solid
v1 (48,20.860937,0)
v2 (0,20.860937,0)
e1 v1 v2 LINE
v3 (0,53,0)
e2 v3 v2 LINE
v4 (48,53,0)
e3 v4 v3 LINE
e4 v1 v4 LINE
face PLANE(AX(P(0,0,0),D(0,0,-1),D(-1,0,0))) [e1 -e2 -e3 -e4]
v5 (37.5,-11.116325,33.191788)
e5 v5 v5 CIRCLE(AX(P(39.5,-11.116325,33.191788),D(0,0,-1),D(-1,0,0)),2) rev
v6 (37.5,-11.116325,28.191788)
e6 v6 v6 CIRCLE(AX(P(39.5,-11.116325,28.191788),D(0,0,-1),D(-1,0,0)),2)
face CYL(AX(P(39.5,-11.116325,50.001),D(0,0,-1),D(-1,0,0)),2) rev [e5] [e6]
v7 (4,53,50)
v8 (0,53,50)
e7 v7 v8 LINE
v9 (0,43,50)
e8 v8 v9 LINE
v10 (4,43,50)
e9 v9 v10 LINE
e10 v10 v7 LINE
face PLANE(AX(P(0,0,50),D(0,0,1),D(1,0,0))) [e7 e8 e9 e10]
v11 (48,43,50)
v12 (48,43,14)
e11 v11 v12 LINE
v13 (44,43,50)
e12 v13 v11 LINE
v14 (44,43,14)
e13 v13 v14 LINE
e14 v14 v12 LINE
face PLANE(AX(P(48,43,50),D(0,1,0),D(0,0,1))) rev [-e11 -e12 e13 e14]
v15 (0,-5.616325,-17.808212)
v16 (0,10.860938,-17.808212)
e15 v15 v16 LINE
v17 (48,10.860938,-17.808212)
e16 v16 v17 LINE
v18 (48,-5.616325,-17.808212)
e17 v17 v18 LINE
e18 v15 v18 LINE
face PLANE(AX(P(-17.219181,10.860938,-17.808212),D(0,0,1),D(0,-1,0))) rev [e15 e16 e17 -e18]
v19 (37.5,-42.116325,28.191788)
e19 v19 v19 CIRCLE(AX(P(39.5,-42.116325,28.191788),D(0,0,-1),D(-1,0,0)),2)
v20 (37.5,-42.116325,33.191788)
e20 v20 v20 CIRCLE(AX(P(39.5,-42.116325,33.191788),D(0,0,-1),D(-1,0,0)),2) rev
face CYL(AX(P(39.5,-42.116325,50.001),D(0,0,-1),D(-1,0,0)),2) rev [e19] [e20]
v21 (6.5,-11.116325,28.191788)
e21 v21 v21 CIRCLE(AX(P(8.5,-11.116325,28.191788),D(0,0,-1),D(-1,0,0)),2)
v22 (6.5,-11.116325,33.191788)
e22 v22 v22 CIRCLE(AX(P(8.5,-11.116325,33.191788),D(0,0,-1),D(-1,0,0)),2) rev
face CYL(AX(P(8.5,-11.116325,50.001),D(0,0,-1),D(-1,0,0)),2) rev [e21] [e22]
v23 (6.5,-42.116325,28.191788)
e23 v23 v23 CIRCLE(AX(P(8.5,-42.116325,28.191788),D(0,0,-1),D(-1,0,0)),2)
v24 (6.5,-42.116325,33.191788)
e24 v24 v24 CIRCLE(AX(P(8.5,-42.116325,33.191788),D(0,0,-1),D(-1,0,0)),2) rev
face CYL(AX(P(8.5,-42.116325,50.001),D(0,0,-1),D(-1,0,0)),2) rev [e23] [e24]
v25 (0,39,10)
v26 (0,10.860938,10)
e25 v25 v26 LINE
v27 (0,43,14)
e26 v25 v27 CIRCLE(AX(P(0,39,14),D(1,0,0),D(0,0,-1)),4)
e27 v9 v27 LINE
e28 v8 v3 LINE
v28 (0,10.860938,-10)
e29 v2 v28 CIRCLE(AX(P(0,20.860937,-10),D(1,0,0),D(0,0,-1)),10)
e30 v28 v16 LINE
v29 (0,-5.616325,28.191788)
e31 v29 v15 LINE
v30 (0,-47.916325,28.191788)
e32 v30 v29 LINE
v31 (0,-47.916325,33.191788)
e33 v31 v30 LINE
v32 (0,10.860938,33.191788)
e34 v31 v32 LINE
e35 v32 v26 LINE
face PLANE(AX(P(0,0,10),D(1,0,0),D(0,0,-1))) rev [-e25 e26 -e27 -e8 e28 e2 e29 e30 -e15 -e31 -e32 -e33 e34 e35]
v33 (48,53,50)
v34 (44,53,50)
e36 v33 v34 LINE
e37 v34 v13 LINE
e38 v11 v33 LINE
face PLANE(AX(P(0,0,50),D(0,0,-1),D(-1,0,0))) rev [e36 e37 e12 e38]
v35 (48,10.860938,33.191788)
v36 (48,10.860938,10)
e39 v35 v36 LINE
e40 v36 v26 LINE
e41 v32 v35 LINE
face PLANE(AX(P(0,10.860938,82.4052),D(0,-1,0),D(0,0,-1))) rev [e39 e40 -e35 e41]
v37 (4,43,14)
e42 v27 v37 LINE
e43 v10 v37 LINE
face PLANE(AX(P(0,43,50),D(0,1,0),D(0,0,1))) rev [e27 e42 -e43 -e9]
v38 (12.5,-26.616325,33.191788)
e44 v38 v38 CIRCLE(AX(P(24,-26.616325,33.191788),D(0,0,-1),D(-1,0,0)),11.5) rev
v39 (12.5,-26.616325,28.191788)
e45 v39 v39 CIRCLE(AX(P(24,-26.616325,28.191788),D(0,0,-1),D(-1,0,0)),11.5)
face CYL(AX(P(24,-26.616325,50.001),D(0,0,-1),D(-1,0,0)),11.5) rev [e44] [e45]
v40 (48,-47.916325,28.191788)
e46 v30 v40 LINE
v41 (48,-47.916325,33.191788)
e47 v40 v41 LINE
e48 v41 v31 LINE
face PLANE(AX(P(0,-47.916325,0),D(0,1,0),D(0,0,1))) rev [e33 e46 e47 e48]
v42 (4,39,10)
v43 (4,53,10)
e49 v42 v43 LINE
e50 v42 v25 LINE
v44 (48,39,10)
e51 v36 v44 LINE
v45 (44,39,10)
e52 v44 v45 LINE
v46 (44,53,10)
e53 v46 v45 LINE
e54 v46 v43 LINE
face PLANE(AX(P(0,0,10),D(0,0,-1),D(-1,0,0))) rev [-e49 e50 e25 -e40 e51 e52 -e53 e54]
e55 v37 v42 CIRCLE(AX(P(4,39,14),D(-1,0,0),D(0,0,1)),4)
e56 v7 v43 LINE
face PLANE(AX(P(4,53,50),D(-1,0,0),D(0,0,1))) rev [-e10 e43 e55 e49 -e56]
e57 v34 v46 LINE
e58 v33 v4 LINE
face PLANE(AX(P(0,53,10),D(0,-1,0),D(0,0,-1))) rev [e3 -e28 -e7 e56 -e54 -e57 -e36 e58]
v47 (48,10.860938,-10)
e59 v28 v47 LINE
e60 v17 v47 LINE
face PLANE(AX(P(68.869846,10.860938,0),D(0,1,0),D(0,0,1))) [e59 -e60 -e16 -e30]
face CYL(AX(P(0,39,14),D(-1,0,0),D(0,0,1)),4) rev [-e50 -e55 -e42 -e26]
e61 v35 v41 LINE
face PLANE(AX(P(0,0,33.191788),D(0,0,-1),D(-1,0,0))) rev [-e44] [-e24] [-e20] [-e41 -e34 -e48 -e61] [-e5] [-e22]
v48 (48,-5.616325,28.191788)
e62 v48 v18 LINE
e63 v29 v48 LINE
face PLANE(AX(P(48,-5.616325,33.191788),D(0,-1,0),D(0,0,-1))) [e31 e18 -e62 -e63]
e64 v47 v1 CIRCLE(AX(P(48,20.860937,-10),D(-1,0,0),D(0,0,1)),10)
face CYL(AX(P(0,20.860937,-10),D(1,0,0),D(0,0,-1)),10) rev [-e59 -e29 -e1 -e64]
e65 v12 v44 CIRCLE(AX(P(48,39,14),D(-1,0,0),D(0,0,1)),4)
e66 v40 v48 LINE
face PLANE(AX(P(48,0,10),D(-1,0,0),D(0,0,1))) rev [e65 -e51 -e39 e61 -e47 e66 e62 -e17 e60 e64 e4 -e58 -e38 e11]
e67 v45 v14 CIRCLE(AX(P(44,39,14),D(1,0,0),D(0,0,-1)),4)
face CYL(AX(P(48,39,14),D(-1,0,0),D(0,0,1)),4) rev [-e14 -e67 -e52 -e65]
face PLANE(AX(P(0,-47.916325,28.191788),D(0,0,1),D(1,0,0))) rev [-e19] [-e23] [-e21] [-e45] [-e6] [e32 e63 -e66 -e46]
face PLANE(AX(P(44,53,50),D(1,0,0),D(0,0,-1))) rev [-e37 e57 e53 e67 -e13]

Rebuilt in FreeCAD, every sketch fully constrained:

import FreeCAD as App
import Part
import Sketcher
Q = App.Units.Quantity


def edges_at(feature, points):
    """Names of the edges that pass closest to the given points."""
    edges = feature.Shape.Edges
    near = lambda p: min(range(len(edges)), key=lambda i: edges[i].distToShape(Part.Vertex(*p))[0])
    return sorted({f"Edge{near(p) + 1}" for p in points})

doc = App.newDocument("Part")
body = doc.addObject("PartDesign::Body", "Body")

# Sketch on XY plane
sketch1 = body.newObject("Sketcher::SketchObject", "Sketch")
sketch1.AttachmentSupport = (doc.getObject("XY_Plane"), [""])
sketch1.MapMode = "FlatFace"
sketch1.addGeometry(Part.LineSegment(App.Vector(0, 53, 0), App.Vector(0, 0, 0)), False)
sketch1.addGeometry(Part.LineSegment(App.Vector(0, 0, 0), App.Vector(48, 0, 0)), False)
sketch1.addGeometry(Part.LineSegment(App.Vector(48, 0, 0), App.Vector(48, 53, 0)), False)
sketch1.addGeometry(Part.LineSegment(App.Vector(48, 53, 0), App.Vector(0, 53, 0)), False)
sketch1.addConstraint(Sketcher.Constraint("Coincident", 0, 2, 1, 1))
sketch1.addConstraint(Sketcher.Constraint("Coincident", 1, 2, 2, 1))
sketch1.addConstraint(Sketcher.Constraint("Coincident", 2, 2, 3, 1))
sketch1.addConstraint(Sketcher.Constraint("Coincident", 3, 2, 0, 1))
sketch1.addConstraint(Sketcher.Constraint("Vertical", 0))
sketch1.addConstraint(Sketcher.Constraint("Horizontal", 1))
sketch1.addConstraint(Sketcher.Constraint("Vertical", 2))
sketch1.addConstraint(Sketcher.Constraint("Horizontal", 3))
sketch1.addConstraint(Sketcher.Constraint("Coincident", 0, 2, -1, 1))
sketch1.addConstraint(Sketcher.Constraint("DistanceX", 1, 1, 1, 2, Q("48 mm")))
sketch1.addConstraint(Sketcher.Constraint("DistanceY", 0, 2, 0, 1, Q("53 mm")))
pad1 = body.newObject("PartDesign::Pad", "Pad")
pad1.Profile = sketch1
pad1.Length = 10

# Sketch on XY plane
sketch2 = body.newObject("Sketcher::SketchObject", "Sketch001")
sketch2.AttachmentSupport = (doc.getObject("XY_Plane"), [""])
sketch2.MapMode = "FlatFace"
sketch2.addGeometry(Part.LineSegment(App.Vector(48, 0, 0), App.Vector(48, -6, 0)), False)
sketch2.addGeometry(Part.LineSegment(App.Vector(48, -6, 0), App.Vector(0, -6, 0)), False)
sketch2.addGeometry(Part.LineSegment(App.Vector(0, -6, 0), App.Vector(0, 0, 0)), False)
sketch2.addGeometry(Part.LineSegment(App.Vector(0, 0, 0), App.Vector(48, 0, 0)), False)
sketch2.addConstraint(Sketcher.Constraint("Coincident", 0, 2, 1, 1))
sketch2.addConstraint(Sketcher.Constraint("Coincident", 1, 2, 2, 1))
sketch2.addConstraint(Sketcher.Constraint("Coincident", 2, 2, 3, 1))
sketch2.addConstraint(Sketcher.Constraint("Coincident", 3, 2, 0, 1))
sketch2.addConstraint(Sketcher.Constraint("Vertical", 0))
sketch2.addConstraint(Sketcher.Constraint("Horizontal", 1))
sketch2.addConstraint(Sketcher.Constraint("Vertical", 2))
sketch2.addConstraint(Sketcher.Constraint("Horizontal", 3))
sketch2.addConstraint(Sketcher.Constraint("Coincident", 2, 2, -1, 1))
sketch2.addConstraint(Sketcher.Constraint("DistanceX", 1, 2, 1, 1, Q("48 mm")))
sketch2.addConstraint(Sketcher.Constraint("DistanceY", 0, 2, 0, 1, Q("5.616325 mm")))
pad2 = body.newObject("PartDesign::Pad", "Pad001")
pad2.Profile = sketch2
pad2.Length = 33.191788

# Sketch on XY plane
sketch3 = body.newObject("Sketcher::SketchObject", "Sketch002")
sketch3.AttachmentSupport = (doc.getObject("XY_Plane"), [""])
sketch3.MapMode = "FlatFace"
sketch3.AttachmentOffset = App.Placement(App.Vector(0, 0, 10), App.Rotation())
sketch3.addGeometry(Part.LineSegment(App.Vector(0, 53, 0), App.Vector(0, 43, 0)), False)
sketch3.addGeometry(Part.LineSegment(App.Vector(0, 43, 0), App.Vector(4, 43, 0)), False)
sketch3.addGeometry(Part.LineSegment(App.Vector(4, 43, 0), App.Vector(4, 53, 0)), False)
sketch3.addGeometry(Part.LineSegment(App.Vector(4, 53, 0), App.Vector(0, 53, 0)), False)
sketch3.addGeometry(Part.LineSegment(App.Vector(44, 53, 0), App.Vector(44, 43, 0)), False)
sketch3.addGeometry(Part.LineSegment(App.Vector(44, 43, 0), App.Vector(48, 43, 0)), False)
sketch3.addGeometry(Part.LineSegment(App.Vector(48, 43, 0), App.Vector(48, 53, 0)), False)
sketch3.addGeometry(Part.LineSegment(App.Vector(48, 53, 0), App.Vector(44, 53, 0)), False)
sketch3.addConstraint(Sketcher.Constraint("Coincident", 0, 2, 1, 1))
sketch3.addConstraint(Sketcher.Constraint("Coincident", 1, 2, 2, 1))
sketch3.addConstraint(Sketcher.Constraint("Coincident", 2, 2, 3, 1))
sketch3.addConstraint(Sketcher.Constraint("Coincident", 3, 2, 0, 1))
sketch3.addConstraint(Sketcher.Constraint("Coincident", 4, 2, 5, 1))
sketch3.addConstraint(Sketcher.Constraint("Coincident", 5, 2, 6, 1))
sketch3.addConstraint(Sketcher.Constraint("Coincident", 6, 2, 7, 1))
sketch3.addConstraint(Sketcher.Constraint("Coincident", 7, 2, 4, 1))
sketch3.addConstraint(Sketcher.Constraint("Vertical", 0))
sketch3.addConstraint(Sketcher.Constraint("Horizontal", 1))
sketch3.addConstraint(Sketcher.Constraint("Vertical", 2))
sketch3.addConstraint(Sketcher.Constraint("Horizontal", 3))
sketch3.addConstraint(Sketcher.Constraint("Vertical", 4))
sketch3.addConstraint(Sketcher.Constraint("Horizontal", 5))
sketch3.addConstraint(Sketcher.Constraint("Vertical", 6))
sketch3.addConstraint(Sketcher.Constraint("Horizontal", 7))
sketch3.addConstraint(Sketcher.Constraint("PointOnObject", 0, 2, -2))
sketch3.addConstraint(Sketcher.Constraint("Horizontal", 1, 2, 4, 2))
sketch3.addConstraint(Sketcher.Constraint("Horizontal", 3, 2, 6, 2))
sketch3.addConstraint(Sketcher.Constraint("Equal", 3, 5))
sketch3.addConstraint(Sketcher.Constraint("DistanceX", 1, 1, 1, 2, Q("4 mm")))
sketch3.addConstraint(Sketcher.Constraint("DistanceY", 0, 2, 0, 1, Q("10 mm")))
sketch3.addConstraint(Sketcher.Constraint("DistanceY", -1, 1, 0, 2, Q("43 mm")))
sketch3.addConstraint(Sketcher.Constraint("DistanceX", -1, 1, 4, 2, Q("44 mm")))
pad3 = body.newObject("PartDesign::Pad", "Pad002")
pad3.Profile = sketch3
pad3.Length = 40

# Sketch on XY plane
sketch4 = body.newObject("Sketcher::SketchObject", "Sketch003")
sketch4.AttachmentSupport = (doc.getObject("XY_Plane"), [""])
sketch4.MapMode = "FlatFace"
sketch4.AttachmentOffset = App.Placement(App.Vector(0, 0, 10), App.Rotation())
sketch4.addGeometry(Part.LineSegment(App.Vector(0, 11, 0), App.Vector(0, 0, 0)), False)
sketch4.addGeometry(Part.LineSegment(App.Vector(0, 0, 0), App.Vector(48, 0, 0)), False)
sketch4.addGeometry(Part.LineSegment(App.Vector(48, 0, 0), App.Vector(48, 11, 0)), False)
sketch4.addGeometry(Part.LineSegment(App.Vector(48, 11, 0), App.Vector(0, 11, 0)), False)
sketch4.addConstraint(Sketcher.Constraint("Coincident", 0, 2, 1, 1))
sketch4.addConstraint(Sketcher.Constraint("Coincident", 1, 2, 2, 1))
sketch4.addConstraint(Sketcher.Constraint("Coincident", 2, 2, 3, 1))
sketch4.addConstraint(Sketcher.Constraint("Coincident", 3, 2, 0, 1))
sketch4.addConstraint(Sketcher.Constraint("Vertical", 0))
sketch4.addConstraint(Sketcher.Constraint("Horizontal", 1))
sketch4.addConstraint(Sketcher.Constraint("Vertical", 2))
sketch4.addConstraint(Sketcher.Constraint("Horizontal", 3))
sketch4.addConstraint(Sketcher.Constraint("Coincident", 0, 2, -1, 1))
sketch4.addConstraint(Sketcher.Constraint("DistanceX", 1, 1, 1, 2, Q("48 mm")))
sketch4.addConstraint(Sketcher.Constraint("DistanceY", 0, 2, 0, 1, Q("10.860938 mm")))
pad4 = body.newObject("PartDesign::Pad", "Pad003")
pad4.Profile = sketch4
pad4.Length = 23.191788

# Sketch on XZ plane
sketch5 = body.newObject("Sketcher::SketchObject", "Sketch004")
sketch5.AttachmentSupport = (doc.getObject("XZ_Plane"), [""])
sketch5.MapMode = "FlatFace"
sketch5.AttachmentOffset = App.Placement(App.Vector(0, 0, 5.616325), App.Rotation())
sketch5.addGeometry(Part.LineSegment(App.Vector(0, 33, 0), App.Vector(0, 28, 0)), False)
sketch5.addGeometry(Part.LineSegment(App.Vector(0, 28, 0), App.Vector(48, 28, 0)), False)
sketch5.addGeometry(Part.LineSegment(App.Vector(48, 28, 0), App.Vector(48, 33, 0)), False)
sketch5.addGeometry(Part.LineSegment(App.Vector(48, 33, 0), App.Vector(0, 33, 0)), False)
sketch5.addConstraint(Sketcher.Constraint("Coincident", 0, 2, 1, 1))
sketch5.addConstraint(Sketcher.Constraint("Coincident", 1, 2, 2, 1))
sketch5.addConstraint(Sketcher.Constraint("Coincident", 2, 2, 3, 1))
sketch5.addConstraint(Sketcher.Constraint("Coincident", 3, 2, 0, 1))
sketch5.addConstraint(Sketcher.Constraint("Vertical", 0))
sketch5.addConstraint(Sketcher.Constraint("Horizontal", 1))
sketch5.addConstraint(Sketcher.Constraint("Vertical", 2))
sketch5.addConstraint(Sketcher.Constraint("Horizontal", 3))
sketch5.addConstraint(Sketcher.Constraint("PointOnObject", 0, 2, -2))
sketch5.addConstraint(Sketcher.Constraint("DistanceX", 1, 1, 1, 2, Q("48 mm")))
sketch5.addConstraint(Sketcher.Constraint("DistanceY", 0, 2, 0, 1, Q("5 mm")))
sketch5.addConstraint(Sketcher.Constraint("DistanceY", -1, 1, 0, 2, Q("28.191788 mm")))
pad5 = body.newObject("PartDesign::Pad", "Pad004")
pad5.Profile = sketch5
pad5.Length = 42.3

# Sketch on YZ plane
sketch6 = body.newObject("Sketcher::SketchObject", "Sketch005")
sketch6.AttachmentSupport = (doc.getObject("YZ_Plane"), [""])
sketch6.MapMode = "FlatFace"
sketch6.addGeometry(Part.LineSegment(App.Vector(11, -13, 0), App.Vector(-6, -13, 0)), False)
sketch6.addGeometry(Part.LineSegment(App.Vector(-6, -13, 0), App.Vector(-6, 0, 0)), False)
sketch6.addGeometry(Part.LineSegment(App.Vector(-6, 0, 0), App.Vector(11, 0, 0)), False)
sketch6.addGeometry(Part.LineSegment(App.Vector(11, 0, 0), App.Vector(11, -13, 0)), False)
sketch6.addConstraint(Sketcher.Constraint("Coincident", 0, 2, 1, 1))
sketch6.addConstraint(Sketcher.Constraint("Coincident", 1, 2, 2, 1))
sketch6.addConstraint(Sketcher.Constraint("Coincident", 2, 2, 3, 1))
sketch6.addConstraint(Sketcher.Constraint("Coincident", 3, 2, 0, 1))
sketch6.addConstraint(Sketcher.Constraint("Horizontal", 0))
sketch6.addConstraint(Sketcher.Constraint("Vertical", 1))
sketch6.addConstraint(Sketcher.Constraint("Horizontal", 2))
sketch6.addConstraint(Sketcher.Constraint("Vertical", 3))
sketch6.addConstraint(Sketcher.Constraint("PointOnObject", 1, 2, -1))
sketch6.addConstraint(Sketcher.Constraint("DistanceX", 0, 2, 0, 1, Q("16.477263 mm")))
sketch6.addConstraint(Sketcher.Constraint("DistanceY", 1, 1, 1, 2, Q("12.808212 mm")))
sketch6.addConstraint(Sketcher.Constraint("DistanceX", 0, 2, -1, 1, Q("5.616325 mm")))
pad6 = body.newObject("PartDesign::Pad", "Pad005")
pad6.Profile = sketch6
pad6.Length = 48

# Sketch on XY plane
sketch7 = body.newObject("Sketcher::SketchObject", "Sketch006")
sketch7.AttachmentSupport = (doc.getObject("XY_Plane"), [""])
sketch7.MapMode = "FlatFace"
sketch7.AttachmentOffset = App.Placement(App.Vector(0, 0, 28.191788), App.Rotation())
sketch7.addGeometry(Part.Circle(App.Vector(24, -27, 0), App.Vector(0, 0, 1), 12), False)
sketch7.addConstraint(Sketcher.Constraint("Diameter", 0, Q("23 mm")))
sketch7.addConstraint(Sketcher.Constraint("DistanceX", -1, 1, 0, 3, Q("24 mm")))
sketch7.addConstraint(Sketcher.Constraint("DistanceY", 0, 3, -1, 1, Q("26.616325 mm")))
pocket1 = body.newObject("PartDesign::Pocket", "Pocket")
pocket1.Profile = sketch7
pocket1.Type = "UpToFirst"
pocket1.Reversed = True

# Sketch on XY plane
sketch8 = body.newObject("Sketcher::SketchObject", "Sketch007")
sketch8.AttachmentSupport = (doc.getObject("XY_Plane"), [""])
sketch8.MapMode = "FlatFace"
sketch8.AttachmentOffset = App.Placement(App.Vector(0, 0, 28.191788), App.Rotation())
sketch8.addGeometry(Part.Circle(App.Vector(39.5, -11.1, 0), App.Vector(0, 0, 1), 2), False)
sketch8.addConstraint(Sketcher.Constraint("Diameter", 0, Q("4 mm")))
sketch8.addConstraint(Sketcher.Constraint("DistanceX", -1, 1, 0, 3, Q("39.5 mm")))
sketch8.addConstraint(Sketcher.Constraint("DistanceY", 0, 3, -1, 1, Q("11.116325 mm")))
pocket2 = body.newObject("PartDesign::Pocket", "Pocket001")
pocket2.Profile = sketch8
pocket2.Type = "UpToFirst"
pocket2.Reversed = True

# Sketch on XY plane
sketch9 = body.newObject("Sketcher::SketchObject", "Sketch008")
sketch9.AttachmentSupport = (doc.getObject("XY_Plane"), [""])
sketch9.MapMode = "FlatFace"
sketch9.AttachmentOffset = App.Placement(App.Vector(0, 0, 28.191788), App.Rotation())
sketch9.addGeometry(Part.Circle(App.Vector(39.5, -42.1, 0), App.Vector(0, 0, 1), 2), False)
sketch9.addConstraint(Sketcher.Constraint("Diameter", 0, Q("4 mm")))
sketch9.addConstraint(Sketcher.Constraint("DistanceX", -1, 1, 0, 3, Q("39.5 mm")))
sketch9.addConstraint(Sketcher.Constraint("DistanceY", 0, 3, -1, 1, Q("42.116325 mm")))
pocket3 = body.newObject("PartDesign::Pocket", "Pocket002")
pocket3.Profile = sketch9
pocket3.Type = "UpToFirst"
pocket3.Reversed = True

# Sketch on XY plane
sketch10 = body.newObject("Sketcher::SketchObject", "Sketch009")
sketch10.AttachmentSupport = (doc.getObject("XY_Plane"), [""])
sketch10.MapMode = "FlatFace"
sketch10.AttachmentOffset = App.Placement(App.Vector(0, 0, 28.191788), App.Rotation())
sketch10.addGeometry(Part.Circle(App.Vector(8.5, -11.1, 0), App.Vector(0, 0, 1), 2), False)
sketch10.addConstraint(Sketcher.Constraint("Diameter", 0, Q("4 mm")))
sketch10.addConstraint(Sketcher.Constraint("DistanceX", -1, 1, 0, 3, Q("8.5 mm")))
sketch10.addConstraint(Sketcher.Constraint("DistanceY", 0, 3, -1, 1, Q("11.116325 mm")))
pocket4 = body.newObject("PartDesign::Pocket", "Pocket003")
pocket4.Profile = sketch10
pocket4.Type = "UpToFirst"
pocket4.Reversed = True

# Sketch on XY plane
sketch11 = body.newObject("Sketcher::SketchObject", "Sketch010")
sketch11.AttachmentSupport = (doc.getObject("XY_Plane"), [""])
sketch11.MapMode = "FlatFace"
sketch11.AttachmentOffset = App.Placement(App.Vector(0, 0, 28.191788), App.Rotation())
sketch11.addGeometry(Part.Circle(App.Vector(8.5, -42.1, 0), App.Vector(0, 0, 1), 2), False)
sketch11.addConstraint(Sketcher.Constraint("Diameter", 0, Q("4 mm")))
sketch11.addConstraint(Sketcher.Constraint("DistanceX", -1, 1, 0, 3, Q("8.5 mm")))
sketch11.addConstraint(Sketcher.Constraint("DistanceY", 0, 3, -1, 1, Q("42.116325 mm")))
pocket5 = body.newObject("PartDesign::Pocket", "Pocket004")
pocket5.Profile = sketch11
pocket5.Type = "UpToFirst"
pocket5.Reversed = True
doc.recompute()

fillet = body.newObject("PartDesign::Fillet", "Fillet")
fillet.Base = (pocket5, edges_at(pocket5, [(24, 10.861, 0)]))
fillet.Radius = 10
doc.recompute()

fillet2 = body.newObject("PartDesign::Fillet", "Fillet001")
fillet2.Base = (fillet, edges_at(fillet, [(2, 43, 10), (46, 43, 10)]))
fillet2.Radius = 4

# Sketch on YZ plane
sketch12 = body.newObject("Sketcher::SketchObject", "Sketch011")
sketch12.AttachmentSupport = (doc.getObject("YZ_Plane"), [""])
sketch12.MapMode = "FlatFace"
sketch12.AttachmentOffset = App.Placement(App.Vector(0, 0, 48), App.Rotation())
sketch12.addGeometry(Part.LineSegment(App.Vector(11, -13, 0), App.Vector(-6, -13, 0)), False)
sketch12.addGeometry(Part.LineSegment(App.Vector(-6, -13, 0), App.Vector(-6, -18, 0)), False)
sketch12.addGeometry(Part.LineSegment(App.Vector(-6, -18, 0), App.Vector(11, -18, 0)), False)
sketch12.addGeometry(Part.LineSegment(App.Vector(11, -18, 0), App.Vector(11, -13, 0)), False)
sketch12.addConstraint(Sketcher.Constraint("Coincident", 0, 2, 1, 1))
sketch12.addConstraint(Sketcher.Constraint("Coincident", 1, 2, 2, 1))
sketch12.addConstraint(Sketcher.Constraint("Coincident", 2, 2, 3, 1))
sketch12.addConstraint(Sketcher.Constraint("Coincident", 3, 2, 0, 1))
sketch12.addConstraint(Sketcher.Constraint("Horizontal", 0))
sketch12.addConstraint(Sketcher.Constraint("Vertical", 1))
sketch12.addConstraint(Sketcher.Constraint("Horizontal", 2))
sketch12.addConstraint(Sketcher.Constraint("Vertical", 3))
sketch12.addConstraint(Sketcher.Constraint("DistanceY", 1, 2, 1, 1, Q("5 mm")))
sketch12.addConstraint(Sketcher.Constraint("DistanceX", 0, 2, 0, 1, Q("16.477263 mm")))
sketch12.addConstraint(Sketcher.Constraint("DistanceX", 0, 2, -1, 1, Q("5.616325 mm")))
sketch12.addConstraint(Sketcher.Constraint("DistanceY", 0, 2, -1, 1, Q("12.808212 mm")))
pad7 = body.newObject("PartDesign::Pad", "Pad006")
pad7.Profile = sketch12
pad7.Length = 48
pad7.Reversed = True

doc.recompute()
